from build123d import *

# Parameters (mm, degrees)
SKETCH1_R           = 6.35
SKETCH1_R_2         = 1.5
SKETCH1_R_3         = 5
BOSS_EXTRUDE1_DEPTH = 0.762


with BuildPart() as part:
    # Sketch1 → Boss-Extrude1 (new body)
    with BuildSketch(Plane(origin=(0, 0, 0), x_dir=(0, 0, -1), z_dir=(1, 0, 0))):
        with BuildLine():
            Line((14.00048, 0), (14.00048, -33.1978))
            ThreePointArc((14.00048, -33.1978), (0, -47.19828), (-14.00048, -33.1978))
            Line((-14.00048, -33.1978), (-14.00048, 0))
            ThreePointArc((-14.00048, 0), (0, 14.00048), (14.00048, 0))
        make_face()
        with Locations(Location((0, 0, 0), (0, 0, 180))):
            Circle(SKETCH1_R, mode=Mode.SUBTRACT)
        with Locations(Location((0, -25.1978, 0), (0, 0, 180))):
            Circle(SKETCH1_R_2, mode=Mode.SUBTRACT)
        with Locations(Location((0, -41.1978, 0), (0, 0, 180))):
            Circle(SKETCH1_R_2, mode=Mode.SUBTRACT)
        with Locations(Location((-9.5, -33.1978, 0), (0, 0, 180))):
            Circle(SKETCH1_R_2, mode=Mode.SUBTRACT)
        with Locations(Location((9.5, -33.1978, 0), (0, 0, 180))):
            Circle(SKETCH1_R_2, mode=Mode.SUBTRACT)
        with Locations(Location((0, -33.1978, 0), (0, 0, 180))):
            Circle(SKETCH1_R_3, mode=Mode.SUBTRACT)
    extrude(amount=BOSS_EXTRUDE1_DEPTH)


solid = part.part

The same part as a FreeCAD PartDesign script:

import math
import FreeCAD as App
import Part
import Sketcher

V = App.Vector
Q = App.Units.Quantity

doc = App.newDocument("Part")
params = doc.addObject("Spreadsheet::Sheet", "Params")
for row, (alias, value) in enumerate([
    ("sketch1_diameter", "0.5 in"),
    ("sketch1_width", "1.307 in"),
    ("pad1_length", "0.03 in"),
], start=1):
    params.set(f"A{row}", alias)
    params.set(f"B{row}", "=" + value)
    params.setAlias(f"B{row}", alias)

body = doc.addObject("PartDesign::Body", "Body")

sketch1 = doc.addObject("Sketcher::SketchObject", "Sketch")
body.addObject(sketch1)
sketch1.AttachmentSupport = (doc.YZ_Plane, [""])
sketch1.MapMode = "FlatFace"
sketch1.addGeometry([
    Part.LineSegment(V(-33.1978, -14.00048, 0), V(0, -14.00048, 0)),
    Part.ArcOfCircle(Part.Circle(V(0, 0, 0), V(0, 0, 1), 14.00048), math.radians(-90), math.radians(90)),
    Part.LineSegment(V(0, 14.00048, 0), V(-33.1978, 14.00048, 0)),
    Part.ArcOfCircle(Part.Circle(V(-33.1978, 0, 0), V(0, 0, 1), 14.00048), math.radians(90), math.radians(270)),
    Part.Circle(V(-33.1978, -9.5, 0), V(0, 0, 1), 1.5),
    Part.Circle(V(-41.1978, 0, 0), V(0, 0, 1), 1.5),
    Part.Circle(V(-33.1978, 0, 0), V(0, 0, 1), 5),
    Part.Circle(V(-33.1978, 9.5, 0), V(0, 0, 1), 1.5),
    Part.Circle(V(-25.1978, 0, 0), V(0, 0, 1), 1.5),
    Part.Circle(V(0, 0, 0), V(0, 0, 1), 6.35),
], False)
sketch1.addConstraint([
    Sketcher.Constraint("Tangent", 0, 2, 1, 1),
    Sketcher.Constraint("Tangent", 1, 2, 2, 1),
    Sketcher.Constraint("Tangent", 2, 2, 3, 1),
    Sketcher.Constraint("Tangent", 3, 2, 0, 1),
    Sketcher.Constraint("Horizontal", 0),
    Sketcher.Constraint("Horizontal", 2),
    Sketcher.Constraint("Coincident", 1, 3, -1, 1),
    Sketcher.Constraint("Coincident", 9, 3, -1, 1),
    Sketcher.Constraint("Coincident", 6, 3, 3, 3),
    Sketcher.Constraint("Equal", 4, 5),
    Sketcher.Constraint("Equal", 5, 7),
    Sketcher.Constraint("Equal", 7, 8),
    Sketcher.Constraint("Symmetric", 4, 3, 7, 3, -1),
    Sketcher.Constraint("PointOnObject", 5, 3, -1),
    Sketcher.Constraint("PointOnObject", 8, 3, -1),
    Sketcher.Constraint("Vertical", 3, 3, 4, 3),
    Sketcher.Constraint("Diameter", 9, Q("0.5 in")),
    Sketcher.Constraint("Radius", 1, Q("0.5512 in")),
    Sketcher.Constraint("Diameter", 4, Q("3 mm")),
    Sketcher.Constraint("Diameter", 6, Q("10 mm")),
    Sketcher.Constraint("DistanceX", 0, 1, 0, 2, Q("1.307 in")),
    Sketcher.Constraint("DistanceY", 4, 3, -1, 1, Q("9.5 mm")),
    Sketcher.Constraint("DistanceX", 5, 3, -1, 1, Q("41.1978 mm")),
    Sketcher.Constraint("DistanceX", 8, 3, -1, 1, Q("25.1978 mm")),
])
sketch1.setExpression("Constraints[16]", "Params.sketch1_diameter")
sketch1.setExpression("Constraints[20]", "Params.sketch1_width")
pad1 = doc.addObject("PartDesign::Pad", "Pad")
body.addObject(pad1)
pad1.Profile = sketch1
pad1.setExpression("Length", "Params.pad1_length")

doc.recompute()
